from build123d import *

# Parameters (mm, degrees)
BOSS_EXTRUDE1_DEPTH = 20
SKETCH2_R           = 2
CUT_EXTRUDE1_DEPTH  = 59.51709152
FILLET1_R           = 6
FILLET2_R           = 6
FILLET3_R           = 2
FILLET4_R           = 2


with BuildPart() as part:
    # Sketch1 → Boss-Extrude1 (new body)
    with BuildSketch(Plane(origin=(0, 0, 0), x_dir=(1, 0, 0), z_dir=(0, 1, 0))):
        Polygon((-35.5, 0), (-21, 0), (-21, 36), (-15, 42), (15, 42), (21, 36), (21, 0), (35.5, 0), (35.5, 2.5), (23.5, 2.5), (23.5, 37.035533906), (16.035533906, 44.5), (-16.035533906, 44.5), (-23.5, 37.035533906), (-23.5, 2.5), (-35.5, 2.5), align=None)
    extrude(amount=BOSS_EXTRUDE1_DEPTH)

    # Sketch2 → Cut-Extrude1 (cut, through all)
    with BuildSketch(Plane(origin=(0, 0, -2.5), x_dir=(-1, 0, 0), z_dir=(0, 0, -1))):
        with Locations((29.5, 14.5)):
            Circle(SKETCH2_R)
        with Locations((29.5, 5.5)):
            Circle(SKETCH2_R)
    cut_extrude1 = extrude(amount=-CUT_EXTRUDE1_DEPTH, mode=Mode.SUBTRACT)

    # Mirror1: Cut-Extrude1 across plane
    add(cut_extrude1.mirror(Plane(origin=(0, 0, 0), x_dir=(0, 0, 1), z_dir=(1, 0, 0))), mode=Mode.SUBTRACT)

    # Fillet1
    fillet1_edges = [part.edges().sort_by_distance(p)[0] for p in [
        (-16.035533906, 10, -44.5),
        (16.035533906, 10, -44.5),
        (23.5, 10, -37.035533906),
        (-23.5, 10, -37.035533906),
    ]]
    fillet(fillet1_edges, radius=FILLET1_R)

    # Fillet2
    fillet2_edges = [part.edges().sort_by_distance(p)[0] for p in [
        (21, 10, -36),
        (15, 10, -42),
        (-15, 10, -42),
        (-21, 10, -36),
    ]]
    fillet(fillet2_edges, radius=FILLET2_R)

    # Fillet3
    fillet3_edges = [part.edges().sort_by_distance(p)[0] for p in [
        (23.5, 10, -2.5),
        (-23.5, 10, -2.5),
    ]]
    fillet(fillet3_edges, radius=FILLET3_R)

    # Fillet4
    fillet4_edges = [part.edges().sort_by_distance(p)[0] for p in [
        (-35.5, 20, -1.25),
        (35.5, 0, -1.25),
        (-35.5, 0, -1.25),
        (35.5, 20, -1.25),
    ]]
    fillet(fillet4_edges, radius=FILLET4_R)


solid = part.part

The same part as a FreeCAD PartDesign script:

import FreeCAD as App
import Part
import Sketcher
from FreeCAD import Vector


def edges_at(feature, points):
    """Names of the edges that pass closest to the given points."""
    edges = feature.Shape.Edges
    near = lambda p: min(range(len(edges)), key=lambda i: edges[i].distToShape(Part.Vertex(*p))[0])
    return sorted({f"Edge{near(p) + 1}" for p in points})

doc = App.newDocument("Part")
body = doc.addObject("PartDesign::Body", "Body")

# Sketch on XZ plane
sketch1 = body.newObject("Sketcher::SketchObject", "Sketch")
sketch1.AttachmentSupport = (doc.getObject("XZ_Plane"), [""])
sketch1.MapMode = "FlatFace"
sketch1.addGeometry([
    Part.LineSegment(Vector(-35.5, 0, 0), Vector(-21, 0, 0)),  # 0
    Part.LineSegment(Vector(-21, 0, 0), Vector(-21, -36, 0)),  # 1
    Part.LineSegment(Vector(-21, -36, 0), Vector(-15, -42, 0)),  # 2
    Part.LineSegment(Vector(-15, -42, 0), Vector(15, -42, 0)),  # 3
    Part.LineSegment(Vector(15, -42, 0), Vector(21, -36, 0)),  # 4
    Part.LineSegment(Vector(21, -36, 0), Vector(21, 0, 0)),  # 5
    Part.LineSegment(Vector(21, 0, 0), Vector(35.5, 0, 0)),  # 6
    Part.LineSegment(Vector(35.5, 0, 0), Vector(35.5, -2.5, 0)),  # 7
    Part.LineSegment(Vector(35.5, -2.5, 0), Vector(23.5, -2.5, 0)),  # 8
    Part.LineSegment(Vector(23.5, -2.5, 0), Vector(23.5, -37.035534, 0)),  # 9
    Part.LineSegment(Vector(23.5, -37.035534, 0), Vector(16.035534, -44.5, 0)),  # 10
    Part.LineSegment(Vector(16.035534, -44.5, 0), Vector(-16.035534, -44.5, 0)),  # 11
    Part.LineSegment(Vector(-16.035534, -44.5, 0), Vector(-23.5, -37.035534, 0)),  # 12
    Part.LineSegment(Vector(-23.5, -37.035534, 0), Vector(-23.5, -2.5, 0)),  # 13
    Part.LineSegment(Vector(-23.5, -2.5, 0), Vector(-35.5, -2.5, 0)),  # 14
    Part.LineSegment(Vector(-35.5, -2.5, 0), Vector(-35.5, 0, 0)),  # 15
], False)
sketch1.addConstraint([
    Sketcher.Constraint("Coincident", 0, 2, 1, 1),
    Sketcher.Constraint("Coincident", 1, 2, 2, 1),
    Sketcher.Constraint("Coincident", 2, 2, 3, 1),
    Sketcher.Constraint("Coincident", 3, 2, 4, 1),
    Sketcher.Constraint("Coincident", 4, 2, 5, 1),
    Sketcher.Constraint("Coincident", 5, 2, 6, 1),
    Sketcher.Constraint("Coincident", 6, 2, 7, 1),
    Sketcher.Constraint("Coincident", 7, 2, 8, 1),
    Sketcher.Constraint("Coincident", 8, 2, 9, 1),
    Sketcher.Constraint("Coincident", 9, 2, 10, 1),
    Sketcher.Constraint("Coincident", 10, 2, 11, 1),
    Sketcher.Constraint("Coincident", 11, 2, 12, 1),
    Sketcher.Constraint("Coincident", 12, 2, 13, 1),
    Sketcher.Constraint("Coincident", 13, 2, 14, 1),
    Sketcher.Constraint("Coincident", 14, 2, 15, 1),
    Sketcher.Constraint("Coincident", 15, 2, 0, 1),
    Sketcher.Constraint("Horizontal", 0),
    Sketcher.Constraint("Vertical", 1),
    Sketcher.Constraint("Horizontal", 3),
    Sketcher.Constraint("Vertical", 5),
    Sketcher.Constraint("Horizontal", 6),
    Sketcher.Constraint("Vertical", 7),
    Sketcher.Constraint("Horizontal", 8),
    Sketcher.Constraint("Vertical", 9),
    Sketcher.Constraint("Horizontal", 11),
    Sketcher.Constraint("Vertical", 13),
    Sketcher.Constraint("Horizontal", 14),
    Sketcher.Constraint("Vertical", 15),
    Sketcher.Constraint("Symmetric", 0, 2, 5, 2, -1, 1),
    Sketcher.Constraint("Symmetric", 9, 2, 12, 2, -2),
    Sketcher.Constraint("Symmetric", 7, 2, 14, 2, -2),
    Sketcher.Constraint("PointOnObject", 0, 2, -1),
    Sketcher.Constraint("Perpendicular", 2, 4),
    Sketcher.Constraint("Parallel", 4, 10),
    Sketcher.Constraint("Perpendicular", 10, 12),
    Sketcher.Constraint("Horizontal", 1, 2, 4, 2),
    Sketcher.Constraint("Equal", 2, 4),
    Sketcher.Constraint("DistanceX", 3, 1, 3, 2, 30.0),
    Sketcher.Constraint("DistanceX", 8, 2, 8, 1, 12.0),
    Sketcher.Constraint("DistanceY", 1, 2, 1, 1, 36.0),
    Sketcher.Constraint("DistanceX", 0, 1, 0, 2, 14.5),
    Sketcher.Constraint("DistanceY", 7, 2, 7, 1, 2.5),
    Sketcher.Constraint("DistanceX", 0, 2, -1, 1, 21.0),
    Sketcher.Constraint("DistanceY", 11, 2, 13, 2, 42.0),
    Sketcher.Constraint("Distance", 10, 10.556349),
])
pad1 = body.newObject("PartDesign::Pad", "Pad")
pad1.Profile = sketch1
pad1.Length = 20
pad1.Reversed = True

# Sketch on XY plane
sketch2 = body.newObject("Sketcher::SketchObject", "Sketch001")
sketch2.AttachmentSupport = (doc.getObject("XY_Plane"), [""])
sketch2.MapMode = "FlatFace"
sketch2.AttachmentOffset = App.Placement(Vector(0, 0, -2.5), App.Rotation())
sketch2.addGeometry([
    Part.Circle(Vector(-29.5, 14.5, 0), Vector(0, 0, 1), 2),
    Part.Circle(Vector(-29.5, 5.5, 0), Vector(0, 0, 1), 2),
], False)
sketch2.addConstraint([
    Sketcher.Constraint("Equal", 0, 1),
    Sketcher.Constraint("Vertical", 0, 3, 1, 3),
    Sketcher.Constraint("Diameter", 0, 4.0),
    Sketcher.Constraint("DistanceY", 1, 3, 0, 3, 9.0),
    Sketcher.Constraint("DistanceX", 0, 3, -1, 1, 29.5),
    Sketcher.Constraint("DistanceY", -1, 1, 0, 3, 14.5),
])
pocket1 = body.newObject("PartDesign::Pocket", "Pocket")
pocket1.Profile = sketch2
pocket1.Type = "ThroughAll"
pocket1.Reversed = True
doc.recompute()

mirrored = body.newObject("PartDesign::Mirrored", "Mirrored")
mirrored.Originals = [pocket1]
mirrored.MirrorPlane = (doc.getObject("YZ_Plane"), [""])
body.Tip = mirrored
doc.recompute()

fillet = body.newObject("PartDesign::Fillet", "Fillet")
fillet.Base = (mirrored, edges_at(mirrored, [
    (-16.036, 10, -44.5),
    (16.036, 10, -44.5),
    (23.5, 10, -37.036),
    (-23.5, 10, -37.036),
]))
fillet.Radius = 6
doc.recompute()

fillet2 = body.newObject("PartDesign::Fillet", "Fillet001")
fillet2.Base = (fillet, edges_at(fillet, [
    (21, 10, -36),
    (15, 10, -42),
    (-15, 10, -42),
    (-21, 10, -36),
]))
fillet2.Radius = 6
doc.recompute()

fillet3 = body.newObject("PartDesign::Fillet", "Fillet002")
fillet3.Base = (fillet2, edges_at(fillet2, [(23.5, 10, -2.5), (-23.5, 10, -2.5)]))
fillet3.Radius = 2
doc.recompute()

fillet4 = body.newObject("PartDesign::Fillet", "Fillet003")
fillet4.Base = (fillet3, edges_at(fillet3, [
    (-35.5, 20, -1.25),
    (35.5, 0, -1.25),
    (-35.5, 0, -1.25),
    (35.5, 20, -1.25),
]))
fillet4.Radius = 2

doc.recompute()
